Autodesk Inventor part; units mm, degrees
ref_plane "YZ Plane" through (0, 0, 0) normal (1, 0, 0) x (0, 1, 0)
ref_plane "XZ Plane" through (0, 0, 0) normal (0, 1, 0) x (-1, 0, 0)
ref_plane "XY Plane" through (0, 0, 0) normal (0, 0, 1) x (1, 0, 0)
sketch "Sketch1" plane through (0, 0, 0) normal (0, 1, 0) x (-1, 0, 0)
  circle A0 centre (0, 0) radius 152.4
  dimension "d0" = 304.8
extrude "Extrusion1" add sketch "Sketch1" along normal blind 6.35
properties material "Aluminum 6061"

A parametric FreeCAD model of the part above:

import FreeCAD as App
import Part
import Sketcher

V = App.Vector
Q = App.Units.Quantity

doc = App.newDocument("Part")
body = doc.addObject("PartDesign::Body", "Body")

sketch1 = doc.addObject("Sketcher::SketchObject", "Sketch")
body.addObject(sketch1)
sketch1.AttachmentSupport = (doc.XZ_Plane, [""])
sketch1.MapMode = "FlatFace"
sketch1.addGeometry(Part.Circle(V(0, 0, 0), V(0, 0, 1), 152), False)
sketch1.addConstraint([
    Sketcher.Constraint("Coincident", 0, 3, -1, 1),
    Sketcher.Constraint("Diameter", 0, Q("12 in")),
])
pad1 = doc.addObject("PartDesign::Pad", "Pad")
body.addObject(pad1)
pad1.Profile = sketch1
pad1.Length = Q("0.25 in")
pad1.Reversed = True

doc.recompute()
